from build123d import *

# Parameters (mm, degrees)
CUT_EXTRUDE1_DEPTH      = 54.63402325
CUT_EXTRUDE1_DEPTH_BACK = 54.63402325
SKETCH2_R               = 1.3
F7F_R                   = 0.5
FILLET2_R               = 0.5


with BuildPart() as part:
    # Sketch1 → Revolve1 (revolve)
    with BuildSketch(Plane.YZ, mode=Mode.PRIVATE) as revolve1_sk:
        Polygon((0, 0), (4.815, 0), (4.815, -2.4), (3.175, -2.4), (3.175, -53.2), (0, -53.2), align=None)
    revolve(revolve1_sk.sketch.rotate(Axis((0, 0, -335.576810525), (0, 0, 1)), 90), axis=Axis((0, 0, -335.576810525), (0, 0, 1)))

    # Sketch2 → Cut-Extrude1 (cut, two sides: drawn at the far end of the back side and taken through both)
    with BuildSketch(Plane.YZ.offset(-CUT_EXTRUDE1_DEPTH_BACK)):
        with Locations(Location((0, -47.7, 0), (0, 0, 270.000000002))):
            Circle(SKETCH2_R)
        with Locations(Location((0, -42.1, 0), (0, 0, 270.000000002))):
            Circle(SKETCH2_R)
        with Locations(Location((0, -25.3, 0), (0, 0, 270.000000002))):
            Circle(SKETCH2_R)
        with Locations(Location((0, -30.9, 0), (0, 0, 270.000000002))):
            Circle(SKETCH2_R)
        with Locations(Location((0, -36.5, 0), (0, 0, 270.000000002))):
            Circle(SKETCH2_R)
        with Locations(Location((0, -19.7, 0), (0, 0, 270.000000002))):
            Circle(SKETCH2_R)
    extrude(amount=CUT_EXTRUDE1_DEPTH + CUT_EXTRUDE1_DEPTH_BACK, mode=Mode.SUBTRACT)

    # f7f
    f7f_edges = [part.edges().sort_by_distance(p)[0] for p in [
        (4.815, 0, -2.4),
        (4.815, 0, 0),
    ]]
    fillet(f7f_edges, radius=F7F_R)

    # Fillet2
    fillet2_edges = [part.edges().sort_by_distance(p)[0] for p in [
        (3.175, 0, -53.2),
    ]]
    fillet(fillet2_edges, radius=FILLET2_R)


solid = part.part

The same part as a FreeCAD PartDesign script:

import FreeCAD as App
import Part
import Sketcher

V = App.Vector
Q = App.Units.Quantity


def edges_at(feature, points):
    """Names of the edges that pass closest to the given points."""
    edges = feature.Shape.Edges
    near = lambda p: min(range(len(edges)), key=lambda i: edges[i].distToShape(Part.Vertex(*p))[0])
    return sorted({f"Edge{near(p) + 1}" for p in points})


def add_polygon(sketch, points):
    """Adds a closed chain of lines whose ends are joined by coincident constraints."""
    first, n = sketch.GeometryCount, len(points)
    for a, b in zip(points, points[1:] + points[:1]):
        sketch.addGeometry(Part.LineSegment(App.Vector(*a, 0), App.Vector(*b, 0)), False)
    for i in range(n):
        sketch.addConstraint(Sketcher.Constraint("Coincident", first + i, 2, first + (i + 1) % n, 1))

doc = App.newDocument("Part")
params = doc.addObject("Spreadsheet::Sheet", "Params")
for row, (alias, value) in enumerate([
    ("sketch1_height", "53.2 mm"),
    ("sketch1_height2", "50.8 mm"),
    ("sketch1_width", "1.64 mm"),
    ("revolution_angle", "360 deg"),
    ("sketch2_diameter", "2.6 mm"),
    ("fillet_radius", "0.5 mm"),
    ("fillet2_radius", "0.5 mm"),
], start=1):
    params.set(f"A{row}", alias)
    params.set(f"B{row}", "=" + value)
    params.setAlias(f"B{row}", alias)

body = doc.addObject("PartDesign::Body", "Body")

sketch1 = doc.addObject("Sketcher::SketchObject", "Sketch")
body.addObject(sketch1)
sketch1.AttachmentSupport = (doc.YZ_Plane, [""])
sketch1.MapMode = "FlatFace"
add_polygon(sketch1, [(4.815, 0), (0, 0), (0, -53.2), (3.175, -53.2), (3.175, -2.4), (4.815, -2.4)])
sketch1.addConstraint(Sketcher.Constraint("Horizontal", 0))
sketch1.addConstraint(Sketcher.Constraint("Vertical", 1))
sketch1.addConstraint(Sketcher.Constraint("Horizontal", 2))
sketch1.addConstraint(Sketcher.Constraint("Vertical", 3))
sketch1.addConstraint(Sketcher.Constraint("Horizontal", 4))
sketch1.addConstraint(Sketcher.Constraint("Vertical", 5))
sketch1.addConstraint(Sketcher.Constraint("Coincident", 0, 2, -1, 1))
sketch1.addConstraint(Sketcher.Constraint("DistanceY", 1, 2, 1, 1, Q("53.2 mm")))
sketch1.addConstraint(Sketcher.Constraint("DistanceY", 3, 1, 3, 2, Q("50.8 mm")))
sketch1.addConstraint(Sketcher.Constraint("DistanceX", 4, 1, 4, 2, Q("1.64 mm")))
sketch1.addConstraint(Sketcher.Constraint("DistanceX", 0, 2, 0, 1, Q("4.815 mm")))
sketch1.setExpression("Constraints[13]", "Params.sketch1_height")
sketch1.setExpression("Constraints[14]", "Params.sketch1_height2")
sketch1.setExpression("Constraints[15]", "Params.sketch1_width")
revolution = doc.addObject("PartDesign::Revolution", "Revolution")
body.addObject(revolution)
revolution.Profile = sketch1
revolution.ReferenceAxis = (sketch1, ["V_Axis"])
revolution.setExpression("Angle", "Params.revolution_angle")

sketch2 = doc.addObject("Sketcher::SketchObject", "Sketch001")
body.addObject(sketch2)
sketch2.AttachmentSupport = (doc.YZ_Plane, [""])
sketch2.MapMode = "FlatFace"
sketch2.addGeometry(Part.Circle(V(0, -47.7, 0), V(0, 0, 1), 1.3), False)
sketch2.addGeometry(Part.Circle(V(0, -42.1, 0), V(0, 0, 1), 1.3), False)
sketch2.addGeometry(Part.Circle(V(0, -25.3, 0), V(0, 0, 1), 1.3), False)
sketch2.addGeometry(Part.Circle(V(0, -30.9, 0), V(0, 0, 1), 1.3), False)
sketch2.addGeometry(Part.Circle(V(0, -36.5, 0), V(0, 0, 1), 1.3), False)
sketch2.addGeometry(Part.Circle(V(0, -19.7, 0), V(0, 0, 1), 1.3), False)
sketch2.addConstraint(Sketcher.Constraint("Equal", 0, 1))
sketch2.addConstraint(Sketcher.Constraint("Equal", 1, 2))
sketch2.addConstraint(Sketcher.Constraint("Equal", 2, 3))
sketch2.addConstraint(Sketcher.Constraint("Equal", 3, 4))
sketch2.addConstraint(Sketcher.Constraint("Equal", 4, 5))
sketch2.addConstraint(Sketcher.Constraint("PointOnObject", 0, 3, -2))
sketch2.addConstraint(Sketcher.Constraint("PointOnObject", 1, 3, -2))
sketch2.addConstraint(Sketcher.Constraint("PointOnObject", 2, 3, -2))
sketch2.addConstraint(Sketcher.Constraint("PointOnObject", 3, 3, -2))
sketch2.addConstraint(Sketcher.Constraint("PointOnObject", 4, 3, -2))
sketch2.addConstraint(Sketcher.Constraint("PointOnObject", 5, 3, -2))
sketch2.addConstraint(Sketcher.Constraint("Diameter", 0, Q("2.6 mm")))
sketch2.addConstraint(Sketcher.Constraint("DistanceY", 0, 3, 5, 3, Q("28 mm")))
sketch2.addConstraint(Sketcher.Constraint("DistanceY", 0, 3, -1, 1, Q("47.7 mm")))
sketch2.addConstraint(Sketcher.Constraint("DistanceY", 1, 3, -1, 1, Q("42.1 mm")))
sketch2.addConstraint(Sketcher.Constraint("DistanceY", 2, 3, -1, 1, Q("25.3 mm")))
sketch2.addConstraint(Sketcher.Constraint("DistanceY", 3, 3, -1, 1, Q("30.9 mm")))
sketch2.addConstraint(Sketcher.Constraint("DistanceY", 4, 3, -1, 1, Q("36.5 mm")))
sketch2.setExpression("Constraints[11]", "Params.sketch2_diameter")
pocket1 = doc.addObject("PartDesign::Pocket", "Pocket")
body.addObject(pocket1)
pocket1.Profile = sketch2
pocket1.Type = "ThroughAll"
pocket1.Midplane = True
doc.recompute()

fillet = doc.addObject("PartDesign::Fillet", "Fillet")
body.addObject(fillet)
fillet.Base = (pocket1, edges_at(pocket1, [(4.815, 0, -2.4), (4.815, 0, 0)]))
fillet.setExpression("Radius", "Params.fillet_radius")
doc.recompute()

fillet2 = doc.addObject("PartDesign::Fillet", "Fillet001")
body.addObject(fillet2)
fillet2.Base = (fillet, edges_at(fillet, [(3.175, 0, -53.2)]))
fillet2.setExpression("Radius", "Params.fillet2_radius")

doc.recompute()
